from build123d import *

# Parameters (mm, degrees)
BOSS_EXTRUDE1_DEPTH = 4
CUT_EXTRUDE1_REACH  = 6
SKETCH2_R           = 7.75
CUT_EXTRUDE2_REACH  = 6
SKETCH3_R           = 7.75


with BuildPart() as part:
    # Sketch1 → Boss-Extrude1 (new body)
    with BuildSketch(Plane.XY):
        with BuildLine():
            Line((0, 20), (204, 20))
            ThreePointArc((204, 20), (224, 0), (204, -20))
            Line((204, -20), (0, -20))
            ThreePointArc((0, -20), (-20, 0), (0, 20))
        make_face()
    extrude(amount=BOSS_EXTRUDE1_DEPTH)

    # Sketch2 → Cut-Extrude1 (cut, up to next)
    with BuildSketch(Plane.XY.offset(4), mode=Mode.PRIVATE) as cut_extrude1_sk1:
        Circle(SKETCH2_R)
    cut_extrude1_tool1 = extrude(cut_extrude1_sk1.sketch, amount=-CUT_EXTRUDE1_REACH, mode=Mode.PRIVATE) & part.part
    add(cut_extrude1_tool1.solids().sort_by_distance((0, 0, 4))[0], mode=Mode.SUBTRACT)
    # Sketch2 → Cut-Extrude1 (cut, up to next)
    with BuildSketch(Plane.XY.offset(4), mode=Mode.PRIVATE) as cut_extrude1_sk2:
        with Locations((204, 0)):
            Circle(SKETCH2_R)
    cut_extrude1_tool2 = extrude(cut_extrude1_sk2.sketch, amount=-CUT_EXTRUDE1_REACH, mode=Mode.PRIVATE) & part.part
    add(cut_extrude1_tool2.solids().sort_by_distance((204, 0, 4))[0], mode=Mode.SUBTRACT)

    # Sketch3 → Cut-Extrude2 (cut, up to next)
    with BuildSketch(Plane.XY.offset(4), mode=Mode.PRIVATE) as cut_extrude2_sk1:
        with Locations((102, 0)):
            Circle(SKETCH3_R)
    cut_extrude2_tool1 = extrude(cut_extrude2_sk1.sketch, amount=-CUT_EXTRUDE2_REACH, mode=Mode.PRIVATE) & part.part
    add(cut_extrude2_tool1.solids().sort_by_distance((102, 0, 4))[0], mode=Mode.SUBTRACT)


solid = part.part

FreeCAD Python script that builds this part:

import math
import FreeCAD as App
import Part
import Sketcher
from FreeCAD import Vector
Q = App.Units.Quantity

doc = App.newDocument("Part")
body = doc.addObject("PartDesign::Body", "Body")

sketch1 = body.newObject("Sketcher::SketchObject", "Sketch")
sketch1.AttachmentSupport = (doc.getObject("XY_Plane"), [""])
sketch1.MapMode = "FlatFace"
sketch1.addGeometry([
    Part.LineSegment(Vector(204, 20, 0), Vector(0, 20, 0)),
    Part.ArcOfCircle(Part.Circle(Vector(0, 0, 0), Vector(0, 0, 1), 20), math.radians(90), math.radians(270)),
    Part.LineSegment(Vector(0, -20, 0), Vector(204, -20, 0)),
    Part.ArcOfCircle(Part.Circle(Vector(204, 0, 0), Vector(0, 0, 1), 20), math.radians(-90), math.radians(90)),
], False)
sketch1.addConstraint([
    Sketcher.Constraint("Tangent", 0, 2, 1, 1),
    Sketcher.Constraint("Tangent", 1, 2, 2, 1),
    Sketcher.Constraint("Tangent", 2, 2, 3, 1),
    Sketcher.Constraint("Tangent", 3, 2, 0, 1),
    Sketcher.Constraint("Horizontal", 0),
    Sketcher.Constraint("Horizontal", 2),
    Sketcher.Constraint("Coincident", 1, 3, -1, 1),
    Sketcher.Constraint("Radius", 1, Q("20 mm")),
    Sketcher.Constraint("DistanceX", 0, 2, 0, 1, Q("204 mm")),
])
pad1 = body.newObject("PartDesign::Pad", "Pad")
pad1.Profile = sketch1
pad1.Length = 4

sketch2 = body.newObject("Sketcher::SketchObject", "Sketch001")
sketch2.AttachmentSupport = (doc.getObject("XY_Plane"), [""])
sketch2.MapMode = "FlatFace"
sketch2.AttachmentOffset = App.Placement(Vector(0, 0, 4), App.Rotation())
sketch2.addGeometry(Part.Circle(Vector(0, 0, 0), Vector(0, 0, 1), 8), False)
sketch2.addConstraint([
    Sketcher.Constraint("Coincident", 0, 3, -1, 1),
    Sketcher.Constraint("Diameter", 0, Q("15.5 mm")),
])
pocket1 = body.newObject("PartDesign::Pocket", "Pocket")
pocket1.Profile = sketch2
pocket1.Type = "UpToFirst"

sketch3 = body.newObject("Sketcher::SketchObject", "Sketch002")
sketch3.AttachmentSupport = (doc.getObject("XY_Plane"), [""])
sketch3.MapMode = "FlatFace"
sketch3.AttachmentOffset = App.Placement(Vector(0, 0, 4), App.Rotation())
sketch3.addGeometry(Part.Circle(Vector(204, 0, 0), Vector(0, 0, 1), 8), False)
sketch3.addConstraint([
    Sketcher.Constraint("PointOnObject", 0, 3, -1),
    Sketcher.Constraint("Diameter", 0, Q("15.5 mm")),
    Sketcher.Constraint("DistanceX", -1, 1, 0, 3, Q("204 mm")),
])
pocket2 = body.newObject("PartDesign::Pocket", "Pocket001")
pocket2.Profile = sketch3
pocket2.Type = "UpToFirst"

sketch4 = body.newObject("Sketcher::SketchObject", "Sketch003")
sketch4.AttachmentSupport = (doc.getObject("XY_Plane"), [""])
sketch4.MapMode = "FlatFace"
sketch4.AttachmentOffset = App.Placement(Vector(0, 0, 4), App.Rotation())
sketch4.addGeometry(Part.Circle(Vector(102, 0, 0), Vector(0, 0, 1), 8), False)
sketch4.addConstraint([
    Sketcher.Constraint("PointOnObject", 0, 3, -1),
    Sketcher.Constraint("Diameter", 0, Q("15.5 mm")),
    Sketcher.Constraint("DistanceX", -1, 1, 0, 3, Q("102 mm")),
])
pocket3 = body.newObject("PartDesign::Pocket", "Pocket002")
pocket3.Profile = sketch4
pocket3.Type = "UpToFirst"

doc.recompute()
